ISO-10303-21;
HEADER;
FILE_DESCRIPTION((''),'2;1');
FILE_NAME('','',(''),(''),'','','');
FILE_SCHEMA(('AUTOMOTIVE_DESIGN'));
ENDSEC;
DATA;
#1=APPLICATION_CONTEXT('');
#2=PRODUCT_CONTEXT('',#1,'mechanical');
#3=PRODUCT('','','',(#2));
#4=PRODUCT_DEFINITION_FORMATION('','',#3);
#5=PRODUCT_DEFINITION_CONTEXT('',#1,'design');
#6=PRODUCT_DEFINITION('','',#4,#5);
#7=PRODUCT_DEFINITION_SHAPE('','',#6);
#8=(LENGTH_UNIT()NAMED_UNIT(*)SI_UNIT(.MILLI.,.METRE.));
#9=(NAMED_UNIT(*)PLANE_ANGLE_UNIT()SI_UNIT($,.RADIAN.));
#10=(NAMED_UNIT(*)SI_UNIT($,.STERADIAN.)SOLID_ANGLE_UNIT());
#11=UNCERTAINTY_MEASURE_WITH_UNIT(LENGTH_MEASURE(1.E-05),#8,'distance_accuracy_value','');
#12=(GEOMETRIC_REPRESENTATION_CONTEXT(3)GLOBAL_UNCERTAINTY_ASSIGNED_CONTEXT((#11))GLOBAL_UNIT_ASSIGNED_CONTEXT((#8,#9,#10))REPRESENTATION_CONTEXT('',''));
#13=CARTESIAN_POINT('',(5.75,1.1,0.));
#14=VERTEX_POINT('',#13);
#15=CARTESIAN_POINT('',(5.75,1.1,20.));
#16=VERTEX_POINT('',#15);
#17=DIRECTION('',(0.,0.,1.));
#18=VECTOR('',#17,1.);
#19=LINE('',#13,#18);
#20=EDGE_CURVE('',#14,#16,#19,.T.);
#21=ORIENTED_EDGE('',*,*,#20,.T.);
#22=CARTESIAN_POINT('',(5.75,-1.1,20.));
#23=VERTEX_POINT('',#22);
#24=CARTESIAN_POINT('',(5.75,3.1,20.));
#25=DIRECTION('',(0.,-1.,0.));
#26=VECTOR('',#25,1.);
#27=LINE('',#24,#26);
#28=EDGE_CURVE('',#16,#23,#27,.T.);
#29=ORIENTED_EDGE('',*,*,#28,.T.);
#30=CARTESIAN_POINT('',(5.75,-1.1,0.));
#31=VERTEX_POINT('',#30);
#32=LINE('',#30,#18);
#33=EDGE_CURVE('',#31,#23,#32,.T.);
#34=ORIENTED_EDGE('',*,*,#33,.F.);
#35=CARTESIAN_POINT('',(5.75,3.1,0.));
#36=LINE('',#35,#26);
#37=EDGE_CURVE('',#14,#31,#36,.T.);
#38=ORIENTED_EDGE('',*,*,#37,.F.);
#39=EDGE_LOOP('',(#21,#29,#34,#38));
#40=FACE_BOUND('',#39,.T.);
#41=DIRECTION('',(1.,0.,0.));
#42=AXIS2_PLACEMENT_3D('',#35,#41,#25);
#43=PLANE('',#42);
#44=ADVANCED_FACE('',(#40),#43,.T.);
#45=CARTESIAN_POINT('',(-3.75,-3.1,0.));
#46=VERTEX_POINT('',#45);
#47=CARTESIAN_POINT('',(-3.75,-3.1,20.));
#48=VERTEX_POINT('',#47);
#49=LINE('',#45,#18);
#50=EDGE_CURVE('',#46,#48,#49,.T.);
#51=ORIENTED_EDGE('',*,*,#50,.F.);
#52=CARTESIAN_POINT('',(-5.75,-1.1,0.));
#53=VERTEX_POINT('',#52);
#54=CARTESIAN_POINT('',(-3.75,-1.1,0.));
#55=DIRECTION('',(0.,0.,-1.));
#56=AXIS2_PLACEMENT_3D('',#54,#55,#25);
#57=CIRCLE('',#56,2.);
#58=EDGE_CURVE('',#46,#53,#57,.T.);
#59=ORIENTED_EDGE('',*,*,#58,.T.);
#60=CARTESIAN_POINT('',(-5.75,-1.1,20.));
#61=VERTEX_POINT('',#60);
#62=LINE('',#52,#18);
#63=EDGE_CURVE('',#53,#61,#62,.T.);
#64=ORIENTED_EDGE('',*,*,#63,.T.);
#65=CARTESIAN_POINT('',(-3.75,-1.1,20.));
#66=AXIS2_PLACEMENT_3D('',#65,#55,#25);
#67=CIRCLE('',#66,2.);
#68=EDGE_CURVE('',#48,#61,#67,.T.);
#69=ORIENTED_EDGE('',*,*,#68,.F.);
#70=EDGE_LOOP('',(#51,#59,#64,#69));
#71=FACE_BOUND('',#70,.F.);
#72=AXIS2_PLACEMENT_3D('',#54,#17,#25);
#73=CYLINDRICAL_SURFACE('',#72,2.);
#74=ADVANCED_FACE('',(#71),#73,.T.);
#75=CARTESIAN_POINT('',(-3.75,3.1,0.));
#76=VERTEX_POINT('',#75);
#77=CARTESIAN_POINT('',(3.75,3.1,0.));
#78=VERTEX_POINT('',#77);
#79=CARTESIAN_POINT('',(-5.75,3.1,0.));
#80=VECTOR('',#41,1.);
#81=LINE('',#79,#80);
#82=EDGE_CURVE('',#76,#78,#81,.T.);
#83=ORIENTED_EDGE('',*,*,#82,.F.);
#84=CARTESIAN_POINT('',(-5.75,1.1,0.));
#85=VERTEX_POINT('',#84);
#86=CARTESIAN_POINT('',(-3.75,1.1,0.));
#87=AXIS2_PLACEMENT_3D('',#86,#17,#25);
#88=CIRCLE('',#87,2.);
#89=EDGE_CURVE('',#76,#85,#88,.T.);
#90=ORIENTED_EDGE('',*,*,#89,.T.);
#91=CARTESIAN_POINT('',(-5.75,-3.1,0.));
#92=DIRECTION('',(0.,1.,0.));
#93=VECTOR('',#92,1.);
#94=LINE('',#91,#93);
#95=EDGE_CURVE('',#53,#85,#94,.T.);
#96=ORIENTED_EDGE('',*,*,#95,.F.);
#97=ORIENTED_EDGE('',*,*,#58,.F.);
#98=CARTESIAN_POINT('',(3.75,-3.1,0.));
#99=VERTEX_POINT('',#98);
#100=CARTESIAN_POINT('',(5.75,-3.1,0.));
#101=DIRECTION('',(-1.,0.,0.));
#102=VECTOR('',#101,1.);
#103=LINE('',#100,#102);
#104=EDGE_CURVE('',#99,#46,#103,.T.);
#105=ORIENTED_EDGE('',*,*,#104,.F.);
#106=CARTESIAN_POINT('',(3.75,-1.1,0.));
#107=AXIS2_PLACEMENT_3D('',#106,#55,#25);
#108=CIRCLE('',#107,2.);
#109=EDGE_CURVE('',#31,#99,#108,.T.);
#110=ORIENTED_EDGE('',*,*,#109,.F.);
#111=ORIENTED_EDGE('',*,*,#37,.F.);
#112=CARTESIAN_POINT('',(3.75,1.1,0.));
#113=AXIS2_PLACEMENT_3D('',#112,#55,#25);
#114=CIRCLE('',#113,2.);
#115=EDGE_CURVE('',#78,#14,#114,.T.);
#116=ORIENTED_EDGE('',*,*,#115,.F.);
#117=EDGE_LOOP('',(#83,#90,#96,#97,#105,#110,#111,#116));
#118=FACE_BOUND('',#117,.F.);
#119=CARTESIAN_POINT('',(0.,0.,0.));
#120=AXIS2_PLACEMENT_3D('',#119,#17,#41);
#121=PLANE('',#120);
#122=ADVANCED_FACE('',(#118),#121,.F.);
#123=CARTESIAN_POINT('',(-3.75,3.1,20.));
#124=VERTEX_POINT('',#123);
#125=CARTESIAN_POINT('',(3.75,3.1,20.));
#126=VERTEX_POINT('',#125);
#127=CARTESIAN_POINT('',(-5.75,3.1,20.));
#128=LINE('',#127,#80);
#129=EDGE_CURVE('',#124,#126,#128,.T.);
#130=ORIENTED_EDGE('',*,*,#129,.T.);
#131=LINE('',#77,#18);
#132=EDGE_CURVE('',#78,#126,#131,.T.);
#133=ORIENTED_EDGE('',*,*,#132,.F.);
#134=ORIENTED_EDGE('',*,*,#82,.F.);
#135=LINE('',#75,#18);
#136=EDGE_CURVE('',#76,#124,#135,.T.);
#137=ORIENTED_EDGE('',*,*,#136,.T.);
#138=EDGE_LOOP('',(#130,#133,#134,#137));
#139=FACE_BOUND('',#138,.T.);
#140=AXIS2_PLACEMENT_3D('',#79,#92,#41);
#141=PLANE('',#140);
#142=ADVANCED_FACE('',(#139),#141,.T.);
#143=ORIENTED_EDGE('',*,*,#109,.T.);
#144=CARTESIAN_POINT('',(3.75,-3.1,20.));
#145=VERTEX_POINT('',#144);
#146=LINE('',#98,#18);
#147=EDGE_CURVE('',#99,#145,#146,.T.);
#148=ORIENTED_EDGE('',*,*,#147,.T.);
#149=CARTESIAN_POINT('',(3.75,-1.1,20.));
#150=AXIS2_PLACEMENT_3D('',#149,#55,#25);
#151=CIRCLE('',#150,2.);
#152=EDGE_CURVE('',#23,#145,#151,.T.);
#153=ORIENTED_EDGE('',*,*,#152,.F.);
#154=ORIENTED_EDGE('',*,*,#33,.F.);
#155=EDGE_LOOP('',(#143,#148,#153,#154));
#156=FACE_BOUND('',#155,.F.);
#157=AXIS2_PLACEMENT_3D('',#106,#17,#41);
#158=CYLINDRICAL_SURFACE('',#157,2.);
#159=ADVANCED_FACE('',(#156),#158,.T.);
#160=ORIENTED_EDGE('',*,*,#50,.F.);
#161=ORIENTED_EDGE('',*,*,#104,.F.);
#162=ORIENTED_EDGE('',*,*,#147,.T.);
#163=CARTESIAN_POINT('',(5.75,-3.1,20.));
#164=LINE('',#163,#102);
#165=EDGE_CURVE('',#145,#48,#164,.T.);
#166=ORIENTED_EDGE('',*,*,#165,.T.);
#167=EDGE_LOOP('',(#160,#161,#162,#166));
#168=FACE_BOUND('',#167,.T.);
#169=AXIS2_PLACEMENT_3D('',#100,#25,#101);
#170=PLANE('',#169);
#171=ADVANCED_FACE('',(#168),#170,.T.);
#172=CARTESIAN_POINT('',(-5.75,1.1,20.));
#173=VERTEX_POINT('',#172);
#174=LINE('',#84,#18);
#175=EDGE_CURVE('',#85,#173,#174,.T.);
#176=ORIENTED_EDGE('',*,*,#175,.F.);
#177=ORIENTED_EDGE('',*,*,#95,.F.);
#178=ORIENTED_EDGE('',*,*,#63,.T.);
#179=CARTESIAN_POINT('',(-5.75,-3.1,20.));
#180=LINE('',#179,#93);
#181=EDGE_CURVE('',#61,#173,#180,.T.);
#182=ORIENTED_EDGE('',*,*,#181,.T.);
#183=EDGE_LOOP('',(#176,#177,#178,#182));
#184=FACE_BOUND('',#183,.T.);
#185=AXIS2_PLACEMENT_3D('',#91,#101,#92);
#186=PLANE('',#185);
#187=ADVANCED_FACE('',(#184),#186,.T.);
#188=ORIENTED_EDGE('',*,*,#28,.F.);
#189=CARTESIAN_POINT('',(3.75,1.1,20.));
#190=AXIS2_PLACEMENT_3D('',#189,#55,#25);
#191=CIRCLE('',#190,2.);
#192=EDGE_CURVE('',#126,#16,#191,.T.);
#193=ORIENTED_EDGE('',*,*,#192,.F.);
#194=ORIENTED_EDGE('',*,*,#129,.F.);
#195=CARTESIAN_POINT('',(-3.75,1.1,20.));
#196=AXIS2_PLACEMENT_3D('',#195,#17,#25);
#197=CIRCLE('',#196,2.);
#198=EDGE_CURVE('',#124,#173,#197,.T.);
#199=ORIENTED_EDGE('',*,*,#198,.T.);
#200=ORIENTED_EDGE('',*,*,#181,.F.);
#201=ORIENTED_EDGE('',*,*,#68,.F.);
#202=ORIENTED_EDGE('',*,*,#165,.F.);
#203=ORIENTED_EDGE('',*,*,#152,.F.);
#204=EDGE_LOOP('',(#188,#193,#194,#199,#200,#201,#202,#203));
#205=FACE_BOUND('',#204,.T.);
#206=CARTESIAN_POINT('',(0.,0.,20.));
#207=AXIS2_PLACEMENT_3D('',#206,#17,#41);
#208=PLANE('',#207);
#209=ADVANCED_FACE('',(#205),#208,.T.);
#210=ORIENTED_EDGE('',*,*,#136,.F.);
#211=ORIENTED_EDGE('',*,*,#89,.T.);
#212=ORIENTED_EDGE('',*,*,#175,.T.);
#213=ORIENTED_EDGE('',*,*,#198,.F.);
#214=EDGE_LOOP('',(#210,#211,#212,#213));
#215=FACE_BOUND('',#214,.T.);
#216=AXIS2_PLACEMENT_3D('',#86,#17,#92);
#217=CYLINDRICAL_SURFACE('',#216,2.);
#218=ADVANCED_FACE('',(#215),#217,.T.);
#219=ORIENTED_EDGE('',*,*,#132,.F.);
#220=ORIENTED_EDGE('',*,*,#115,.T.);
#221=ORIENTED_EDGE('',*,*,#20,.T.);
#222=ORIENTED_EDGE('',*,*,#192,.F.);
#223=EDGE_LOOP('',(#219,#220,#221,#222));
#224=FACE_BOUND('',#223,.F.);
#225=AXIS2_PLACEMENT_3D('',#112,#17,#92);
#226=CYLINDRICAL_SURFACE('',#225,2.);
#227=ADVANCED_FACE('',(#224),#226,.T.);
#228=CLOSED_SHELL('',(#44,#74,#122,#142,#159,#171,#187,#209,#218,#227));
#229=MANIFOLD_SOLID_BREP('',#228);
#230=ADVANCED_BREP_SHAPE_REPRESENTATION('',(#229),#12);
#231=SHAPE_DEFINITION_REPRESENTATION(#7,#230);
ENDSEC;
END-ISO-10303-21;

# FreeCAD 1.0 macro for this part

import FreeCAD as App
import Part
import Sketcher


def edges_at(feature, points):
    """Names of the edges that pass closest to the given points."""
    edges = feature.Shape.Edges
    near = lambda p: min(range(len(edges)), key=lambda i: edges[i].distToShape(Part.Vertex(*p))[0])
    return sorted({f"Edge{near(p) + 1}" for p in points})

doc = App.newDocument("Part")
params = doc.addObject("Spreadsheet::Sheet", "Params")
for row, (alias, value) in enumerate([
    ("sketch1_width", "11.5 mm"),
    ("sketch1_height", "6.2 mm"),
    ("pad1_length", "20 mm"),
    ("fillet_radius", "2 mm"),
], start=1):
    params.set(f"A{row}", alias)
    params.set(f"B{row}", "=" + value)
    params.setAlias(f"B{row}", alias)

body = doc.addObject("PartDesign::Body", "Body")

# Sketch on XY plane
sketch1 = body.newObject("Sketcher::SketchObject", "Sketch")
sketch1.AttachmentSupport = (doc.getObject("XY_Plane"), [""])
sketch1.MapMode = "FlatFace"
sketch1.addGeometry([
    Part.LineSegment(App.Vector(6, 3, 0), App.Vector(-6, 3, 0)),
    Part.LineSegment(App.Vector(-6, 3, 0), App.Vector(-6, -3, 0)),
    Part.LineSegment(App.Vector(-6, -3, 0), App.Vector(6, -3, 0)),
    Part.LineSegment(App.Vector(6, -3, 0), App.Vector(6, 3, 0)),
], False)
sketch1.addConstraint([
    Sketcher.Constraint("Coincident", 0, 2, 1, 1),
    Sketcher.Constraint("Coincident", 1, 2, 2, 1),
    Sketcher.Constraint("Coincident", 2, 2, 3, 1),
    Sketcher.Constraint("Coincident", 3, 2, 0, 1),
    Sketcher.Constraint("Horizontal", 0),
    Sketcher.Constraint("Vertical", 1),
    Sketcher.Constraint("Horizontal", 2),
    Sketcher.Constraint("Vertical", 3),
    Sketcher.Constraint("Symmetric", 0, 2, 2, 2, -1, 1),
    Sketcher.Constraint("DistanceX", 0, 2, 0, 1, 11.5),
    Sketcher.Constraint("DistanceY", 1, 2, 1, 1, 6.2),
])
sketch1.setExpression("Constraints[9]", "Params.sketch1_width")
sketch1.setExpression("Constraints[10]", "Params.sketch1_height")
pad1 = body.newObject("PartDesign::Pad", "Pad")
pad1.Profile = sketch1
pad1.setExpression("Length", "Params.pad1_length")
doc.recompute()

fillet = body.newObject("PartDesign::Fillet", "Fillet")
fillet.Base = (pad1, edges_at(pad1, [
    (5.75, 3.1, 10),
    (-5.75, 3.1, 10),
    (-5.75, -3.1, 10),
    (5.75, -3.1, 10),
]))
fillet.setExpression("Radius", "Params.fillet_radius")

doc.recompute()
